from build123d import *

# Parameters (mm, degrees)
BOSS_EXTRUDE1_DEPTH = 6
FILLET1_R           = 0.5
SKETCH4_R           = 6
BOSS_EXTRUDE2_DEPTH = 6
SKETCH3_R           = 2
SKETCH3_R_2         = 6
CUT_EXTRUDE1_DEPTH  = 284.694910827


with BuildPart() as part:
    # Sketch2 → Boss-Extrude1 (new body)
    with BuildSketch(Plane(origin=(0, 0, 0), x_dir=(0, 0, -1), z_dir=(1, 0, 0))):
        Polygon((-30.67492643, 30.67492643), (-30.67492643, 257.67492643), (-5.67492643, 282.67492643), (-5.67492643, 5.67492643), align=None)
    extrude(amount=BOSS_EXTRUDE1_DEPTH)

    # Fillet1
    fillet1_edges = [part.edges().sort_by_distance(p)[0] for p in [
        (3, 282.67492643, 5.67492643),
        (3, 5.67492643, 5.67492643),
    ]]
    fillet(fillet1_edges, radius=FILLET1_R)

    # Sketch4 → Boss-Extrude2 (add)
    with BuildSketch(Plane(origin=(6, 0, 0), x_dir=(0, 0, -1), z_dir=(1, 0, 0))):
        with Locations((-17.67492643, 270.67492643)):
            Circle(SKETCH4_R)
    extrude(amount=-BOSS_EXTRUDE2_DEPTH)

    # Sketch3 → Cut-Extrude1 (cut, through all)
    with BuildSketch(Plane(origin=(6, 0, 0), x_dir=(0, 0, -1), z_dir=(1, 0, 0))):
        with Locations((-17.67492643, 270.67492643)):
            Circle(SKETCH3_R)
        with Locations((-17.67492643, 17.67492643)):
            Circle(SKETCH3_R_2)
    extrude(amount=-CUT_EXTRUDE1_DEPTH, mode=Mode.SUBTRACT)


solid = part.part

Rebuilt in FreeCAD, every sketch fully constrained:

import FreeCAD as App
import Part
import Sketcher
Q = App.Units.Quantity


def edges_at(feature, points):
    """Names of the edges that pass closest to the given points."""
    edges = feature.Shape.Edges
    near = lambda p: min(range(len(edges)), key=lambda i: edges[i].distToShape(Part.Vertex(*p))[0])
    return sorted({f"Edge{near(p) + 1}" for p in points})


def add_polygon(sketch, points):
    """Adds a closed chain of lines whose ends are joined by coincident constraints."""
    first, n = sketch.GeometryCount, len(points)
    for a, b in zip(points, points[1:] + points[:1]):
        sketch.addGeometry(Part.LineSegment(App.Vector(*a, 0), App.Vector(*b, 0)), False)
    for i in range(n):
        sketch.addConstraint(Sketcher.Constraint("Coincident", first + i, 2, first + (i + 1) % n, 1))

doc = App.newDocument("Part")
body = doc.addObject("PartDesign::Body", "Body")

# Sketch on YZ plane
sketch1 = doc.addObject("Sketcher::SketchObject", "Sketch")
body.addObject(sketch1)
sketch1.AttachmentSupport = (doc.YZ_Plane, [""])
sketch1.MapMode = "FlatFace"
add_polygon(sketch1, [(258, 31), (31, 31), (6, 6), (283, 6)])  # lines 0-3
sketch1.addConstraint([
    Sketcher.Constraint("Horizontal", 0),
    Sketcher.Constraint("Horizontal", 2),
    Sketcher.Constraint("Perpendicular", 1, 3),
    Sketcher.Constraint("Equal", 1, 3),
    Sketcher.Constraint("DistanceX", 0, 2, 0, 1, Q("227 mm")),
    Sketcher.Constraint("DistanceX", 2, 1, 2, 2, Q("277 mm")),
    Sketcher.Constraint("DistanceX", -1, 1, 0, 2, Q("30.674926 mm")),
    Sketcher.Constraint("DistanceY", -1, 1, 0, 2, Q("30.674926 mm")),
])
pad1 = doc.addObject("PartDesign::Pad", "Pad")
body.addObject(pad1)
pad1.Profile = sketch1
pad1.Length = 6
doc.recompute()

fillet = doc.addObject("PartDesign::Fillet", "Fillet")
body.addObject(fillet)
fillet.Base = (pad1, edges_at(pad1, [(3, 282.675, 5.675), (3, 5.675, 5.675)]))
fillet.Radius = 0.5

# Sketch on YZ plane
sketch2 = doc.addObject("Sketcher::SketchObject", "Sketch001")
body.addObject(sketch2)
sketch2.AttachmentSupport = (doc.YZ_Plane, [""])
sketch2.MapMode = "FlatFace"
sketch2.AttachmentOffset = App.Placement(App.Vector(0, 0, 6), App.Rotation())
sketch2.addGeometry(Part.Circle(App.Vector(271, 18, 0), App.Vector(0, 0, 1), 6), False)
sketch2.addConstraint([
    Sketcher.Constraint("Diameter", 0, Q("12 mm")),
    Sketcher.Constraint("DistanceX", -1, 1, 0, 3, Q("270.674926 mm")),
    Sketcher.Constraint("DistanceY", -1, 1, 0, 3, Q("17.674926 mm")),
])
pad2 = doc.addObject("PartDesign::Pad", "Pad001")
body.addObject(pad2)
pad2.Profile = sketch2
pad2.Length = 6
pad2.Reversed = True

# Sketch on YZ plane
sketch3 = doc.addObject("Sketcher::SketchObject", "Sketch002")
body.addObject(sketch3)
sketch3.AttachmentSupport = (doc.YZ_Plane, [""])
sketch3.MapMode = "FlatFace"
sketch3.AttachmentOffset = App.Placement(App.Vector(0, 0, 6), App.Rotation())
sketch3.addGeometry([
    Part.Circle(App.Vector(270.7, 17.7, 0), App.Vector(0, 0, 1), 2),
    Part.Circle(App.Vector(17.7, 17.7, 0), App.Vector(0, 0, 1), 6),
], False)
sketch3.addConstraint([
    Sketcher.Constraint("Horizontal", 0, 3, 1, 3),
    Sketcher.Constraint("Diameter", 0, Q("4 mm")),
    Sketcher.Constraint("Diameter", 1, Q("12 mm")),
    Sketcher.Constraint("DistanceX", 1, 3, 0, 3, Q("253 mm")),
    Sketcher.Constraint("DistanceX", -1, 1, 0, 3, Q("270.674926 mm")),
    Sketcher.Constraint("DistanceY", -1, 1, 0, 3, Q("17.674926 mm")),
])
pocket1 = doc.addObject("PartDesign::Pocket", "Pocket")
body.addObject(pocket1)
pocket1.Profile = sketch3
pocket1.Type = "ThroughAll"

doc.recompute()
